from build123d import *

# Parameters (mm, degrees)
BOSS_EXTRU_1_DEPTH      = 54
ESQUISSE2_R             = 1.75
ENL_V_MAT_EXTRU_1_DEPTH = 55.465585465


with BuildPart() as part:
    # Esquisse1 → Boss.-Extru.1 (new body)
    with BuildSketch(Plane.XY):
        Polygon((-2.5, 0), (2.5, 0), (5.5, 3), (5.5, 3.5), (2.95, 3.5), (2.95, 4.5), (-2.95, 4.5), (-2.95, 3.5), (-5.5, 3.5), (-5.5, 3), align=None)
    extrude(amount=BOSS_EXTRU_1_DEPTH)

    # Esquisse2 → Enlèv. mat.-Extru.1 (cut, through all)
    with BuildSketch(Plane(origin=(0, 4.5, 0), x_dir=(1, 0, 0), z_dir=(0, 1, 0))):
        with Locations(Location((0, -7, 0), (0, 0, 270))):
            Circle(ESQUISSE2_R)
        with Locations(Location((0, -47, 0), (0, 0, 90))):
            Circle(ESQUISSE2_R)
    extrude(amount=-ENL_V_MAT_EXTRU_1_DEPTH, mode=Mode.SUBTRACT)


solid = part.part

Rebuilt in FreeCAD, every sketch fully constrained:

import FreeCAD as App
import Part
import Sketcher

V = App.Vector
Q = App.Units.Quantity

doc = App.newDocument("Part")
body = doc.addObject("PartDesign::Body", "Body")

# Sketch on XY plane
sketch1 = body.newObject("Sketcher::SketchObject", "Sketch")
sketch1.AttachmentSupport = (doc.getObject("XY_Plane"), [""])
sketch1.MapMode = "FlatFace"
sketch1.addGeometry([
    Part.LineSegment(V(-2.5, 0, 0), V(2.5, 0, 0)),  # 0
    Part.LineSegment(V(2.5, 0, 0), V(5.5, 3, 0)),  # 1
    Part.LineSegment(V(5.5, 3, 0), V(5.5, 3.5, 0)),  # 2
    Part.LineSegment(V(5.5, 3.5, 0), V(3, 3.5, 0)),  # 3
    Part.LineSegment(V(3, 3.5, 0), V(3, 4.5, 0)),  # 4
    Part.LineSegment(V(3, 4.5, 0), V(-3, 4.5, 0)),  # 5
    Part.LineSegment(V(-3, 4.5, 0), V(-3, 3.5, 0)),  # 6
    Part.LineSegment(V(-3, 3.5, 0), V(-5.5, 3.5, 0)),  # 7
    Part.LineSegment(V(-5.5, 3.5, 0), V(-5.5, 3, 0)),  # 8
    Part.LineSegment(V(-5.5, 3, 0), V(-2.5, 0, 0)),  # 9
], False)
sketch1.addConstraint([
    Sketcher.Constraint("Coincident", 0, 2, 1, 1),
    Sketcher.Constraint("Coincident", 1, 2, 2, 1),
    Sketcher.Constraint("Coincident", 2, 2, 3, 1),
    Sketcher.Constraint("Coincident", 3, 2, 4, 1),
    Sketcher.Constraint("Coincident", 4, 2, 5, 1),
    Sketcher.Constraint("Coincident", 5, 2, 6, 1),
    Sketcher.Constraint("Coincident", 6, 2, 7, 1),
    Sketcher.Constraint("Coincident", 7, 2, 8, 1),
    Sketcher.Constraint("Coincident", 8, 2, 9, 1),
    Sketcher.Constraint("Coincident", 9, 2, 0, 1),
    Sketcher.Constraint("Horizontal", 0),
    Sketcher.Constraint("Vertical", 2),
    Sketcher.Constraint("Horizontal", 3),
    Sketcher.Constraint("Vertical", 4),
    Sketcher.Constraint("Horizontal", 5),
    Sketcher.Constraint("Vertical", 6),
    Sketcher.Constraint("Horizontal", 7),
    Sketcher.Constraint("Vertical", 8),
    Sketcher.Constraint("Symmetric", 0, 2, 9, 2, -1, 1),
    Sketcher.Constraint("Symmetric", 3, 2, 6, 2, -2),
    Sketcher.Constraint("Symmetric", 1, 2, 8, 2, -2),
    Sketcher.Constraint("Perpendicular", 1, 9),
    Sketcher.Constraint("DistanceX", 0, 1, 0, 2, Q("5 mm")),
    Sketcher.Constraint("DistanceY", 4, 1, 4, 2, Q("1 mm")),
    Sketcher.Constraint("DistanceX", 5, 2, 5, 1, Q("5.9 mm")),
    Sketcher.Constraint("DistanceY", 2, 1, 2, 2, Q("0.5 mm")),
    Sketcher.Constraint("DistanceY", -1, 1, 1, 2, Q("3 mm")),
])
pad1 = body.newObject("PartDesign::Pad", "Pad")
pad1.Profile = sketch1
pad1.Length = 54

# Sketch on XZ plane
sketch2 = body.newObject("Sketcher::SketchObject", "Sketch001")
sketch2.AttachmentSupport = (doc.getObject("XZ_Plane"), [""])
sketch2.MapMode = "FlatFace"
sketch2.AttachmentOffset = App.Placement(V(0, 0, -4.5), App.Rotation())
sketch2.addGeometry([
    Part.Circle(V(0, 7, 0), V(0, 0, 1), 1.8),
    Part.Circle(V(0, 47, 0), V(0, 0, 1), 1.8),
], False)
sketch2.addConstraint([
    Sketcher.Constraint("Equal", 0, 1),
    Sketcher.Constraint("PointOnObject", 0, 3, -2),
    Sketcher.Constraint("PointOnObject", 1, 3, -2),
    Sketcher.Constraint("Diameter", 0, Q("3.5 mm")),
    Sketcher.Constraint("DistanceY", -1, 1, 0, 3, Q("7 mm")),
    Sketcher.Constraint("DistanceY", -1, 1, 1, 3, Q("47 mm")),
])
pocket1 = body.newObject("PartDesign::Pocket", "Pocket")
pocket1.Profile = sketch2
pocket1.Type = "ThroughAll"
pocket1.Reversed = True

doc.recompute()
